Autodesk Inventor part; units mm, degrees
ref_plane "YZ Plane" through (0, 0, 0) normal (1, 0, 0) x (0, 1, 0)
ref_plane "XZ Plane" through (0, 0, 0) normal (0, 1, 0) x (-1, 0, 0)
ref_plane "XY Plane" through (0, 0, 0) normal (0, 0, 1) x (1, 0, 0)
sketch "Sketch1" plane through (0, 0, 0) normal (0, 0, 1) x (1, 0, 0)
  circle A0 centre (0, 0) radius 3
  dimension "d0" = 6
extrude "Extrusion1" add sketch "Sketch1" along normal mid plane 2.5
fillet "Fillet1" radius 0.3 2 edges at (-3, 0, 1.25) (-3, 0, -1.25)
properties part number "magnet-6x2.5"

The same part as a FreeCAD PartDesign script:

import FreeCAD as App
import Part
import Sketcher
from FreeCAD import Vector


def edges_at(feature, points):
    """Names of the edges that pass closest to the given points."""
    edges = feature.Shape.Edges
    near = lambda p: min(range(len(edges)), key=lambda i: edges[i].distToShape(Part.Vertex(*p))[0])
    return sorted({f"Edge{near(p) + 1}" for p in points})

doc = App.newDocument("Part")
body = doc.addObject("PartDesign::Body", "Body")

sketch1 = doc.addObject("Sketcher::SketchObject", "Sketch")
body.addObject(sketch1)
sketch1.AttachmentSupport = (doc.XY_Plane, [""])
sketch1.MapMode = "FlatFace"
sketch1.addGeometry(Part.Circle(Vector(0, 0, 0), Vector(0, 0, 1), 3), False)
sketch1.addConstraint([
    Sketcher.Constraint("Coincident", 0, 3, -1, 1),
    Sketcher.Constraint("Diameter", 0, 6.0),
])
pad1 = doc.addObject("PartDesign::Pad", "Pad")
body.addObject(pad1)
pad1.Profile = sketch1
pad1.Length = 2.5
pad1.Midplane = True
doc.recompute()

fillet = doc.addObject("PartDesign::Fillet", "Fillet")
body.addObject(fillet)
fillet.Base = (pad1, edges_at(pad1, [(-3, 0, 1.25), (-3, 0, -1.25)]))
fillet.Radius = 0.3

doc.recompute()
